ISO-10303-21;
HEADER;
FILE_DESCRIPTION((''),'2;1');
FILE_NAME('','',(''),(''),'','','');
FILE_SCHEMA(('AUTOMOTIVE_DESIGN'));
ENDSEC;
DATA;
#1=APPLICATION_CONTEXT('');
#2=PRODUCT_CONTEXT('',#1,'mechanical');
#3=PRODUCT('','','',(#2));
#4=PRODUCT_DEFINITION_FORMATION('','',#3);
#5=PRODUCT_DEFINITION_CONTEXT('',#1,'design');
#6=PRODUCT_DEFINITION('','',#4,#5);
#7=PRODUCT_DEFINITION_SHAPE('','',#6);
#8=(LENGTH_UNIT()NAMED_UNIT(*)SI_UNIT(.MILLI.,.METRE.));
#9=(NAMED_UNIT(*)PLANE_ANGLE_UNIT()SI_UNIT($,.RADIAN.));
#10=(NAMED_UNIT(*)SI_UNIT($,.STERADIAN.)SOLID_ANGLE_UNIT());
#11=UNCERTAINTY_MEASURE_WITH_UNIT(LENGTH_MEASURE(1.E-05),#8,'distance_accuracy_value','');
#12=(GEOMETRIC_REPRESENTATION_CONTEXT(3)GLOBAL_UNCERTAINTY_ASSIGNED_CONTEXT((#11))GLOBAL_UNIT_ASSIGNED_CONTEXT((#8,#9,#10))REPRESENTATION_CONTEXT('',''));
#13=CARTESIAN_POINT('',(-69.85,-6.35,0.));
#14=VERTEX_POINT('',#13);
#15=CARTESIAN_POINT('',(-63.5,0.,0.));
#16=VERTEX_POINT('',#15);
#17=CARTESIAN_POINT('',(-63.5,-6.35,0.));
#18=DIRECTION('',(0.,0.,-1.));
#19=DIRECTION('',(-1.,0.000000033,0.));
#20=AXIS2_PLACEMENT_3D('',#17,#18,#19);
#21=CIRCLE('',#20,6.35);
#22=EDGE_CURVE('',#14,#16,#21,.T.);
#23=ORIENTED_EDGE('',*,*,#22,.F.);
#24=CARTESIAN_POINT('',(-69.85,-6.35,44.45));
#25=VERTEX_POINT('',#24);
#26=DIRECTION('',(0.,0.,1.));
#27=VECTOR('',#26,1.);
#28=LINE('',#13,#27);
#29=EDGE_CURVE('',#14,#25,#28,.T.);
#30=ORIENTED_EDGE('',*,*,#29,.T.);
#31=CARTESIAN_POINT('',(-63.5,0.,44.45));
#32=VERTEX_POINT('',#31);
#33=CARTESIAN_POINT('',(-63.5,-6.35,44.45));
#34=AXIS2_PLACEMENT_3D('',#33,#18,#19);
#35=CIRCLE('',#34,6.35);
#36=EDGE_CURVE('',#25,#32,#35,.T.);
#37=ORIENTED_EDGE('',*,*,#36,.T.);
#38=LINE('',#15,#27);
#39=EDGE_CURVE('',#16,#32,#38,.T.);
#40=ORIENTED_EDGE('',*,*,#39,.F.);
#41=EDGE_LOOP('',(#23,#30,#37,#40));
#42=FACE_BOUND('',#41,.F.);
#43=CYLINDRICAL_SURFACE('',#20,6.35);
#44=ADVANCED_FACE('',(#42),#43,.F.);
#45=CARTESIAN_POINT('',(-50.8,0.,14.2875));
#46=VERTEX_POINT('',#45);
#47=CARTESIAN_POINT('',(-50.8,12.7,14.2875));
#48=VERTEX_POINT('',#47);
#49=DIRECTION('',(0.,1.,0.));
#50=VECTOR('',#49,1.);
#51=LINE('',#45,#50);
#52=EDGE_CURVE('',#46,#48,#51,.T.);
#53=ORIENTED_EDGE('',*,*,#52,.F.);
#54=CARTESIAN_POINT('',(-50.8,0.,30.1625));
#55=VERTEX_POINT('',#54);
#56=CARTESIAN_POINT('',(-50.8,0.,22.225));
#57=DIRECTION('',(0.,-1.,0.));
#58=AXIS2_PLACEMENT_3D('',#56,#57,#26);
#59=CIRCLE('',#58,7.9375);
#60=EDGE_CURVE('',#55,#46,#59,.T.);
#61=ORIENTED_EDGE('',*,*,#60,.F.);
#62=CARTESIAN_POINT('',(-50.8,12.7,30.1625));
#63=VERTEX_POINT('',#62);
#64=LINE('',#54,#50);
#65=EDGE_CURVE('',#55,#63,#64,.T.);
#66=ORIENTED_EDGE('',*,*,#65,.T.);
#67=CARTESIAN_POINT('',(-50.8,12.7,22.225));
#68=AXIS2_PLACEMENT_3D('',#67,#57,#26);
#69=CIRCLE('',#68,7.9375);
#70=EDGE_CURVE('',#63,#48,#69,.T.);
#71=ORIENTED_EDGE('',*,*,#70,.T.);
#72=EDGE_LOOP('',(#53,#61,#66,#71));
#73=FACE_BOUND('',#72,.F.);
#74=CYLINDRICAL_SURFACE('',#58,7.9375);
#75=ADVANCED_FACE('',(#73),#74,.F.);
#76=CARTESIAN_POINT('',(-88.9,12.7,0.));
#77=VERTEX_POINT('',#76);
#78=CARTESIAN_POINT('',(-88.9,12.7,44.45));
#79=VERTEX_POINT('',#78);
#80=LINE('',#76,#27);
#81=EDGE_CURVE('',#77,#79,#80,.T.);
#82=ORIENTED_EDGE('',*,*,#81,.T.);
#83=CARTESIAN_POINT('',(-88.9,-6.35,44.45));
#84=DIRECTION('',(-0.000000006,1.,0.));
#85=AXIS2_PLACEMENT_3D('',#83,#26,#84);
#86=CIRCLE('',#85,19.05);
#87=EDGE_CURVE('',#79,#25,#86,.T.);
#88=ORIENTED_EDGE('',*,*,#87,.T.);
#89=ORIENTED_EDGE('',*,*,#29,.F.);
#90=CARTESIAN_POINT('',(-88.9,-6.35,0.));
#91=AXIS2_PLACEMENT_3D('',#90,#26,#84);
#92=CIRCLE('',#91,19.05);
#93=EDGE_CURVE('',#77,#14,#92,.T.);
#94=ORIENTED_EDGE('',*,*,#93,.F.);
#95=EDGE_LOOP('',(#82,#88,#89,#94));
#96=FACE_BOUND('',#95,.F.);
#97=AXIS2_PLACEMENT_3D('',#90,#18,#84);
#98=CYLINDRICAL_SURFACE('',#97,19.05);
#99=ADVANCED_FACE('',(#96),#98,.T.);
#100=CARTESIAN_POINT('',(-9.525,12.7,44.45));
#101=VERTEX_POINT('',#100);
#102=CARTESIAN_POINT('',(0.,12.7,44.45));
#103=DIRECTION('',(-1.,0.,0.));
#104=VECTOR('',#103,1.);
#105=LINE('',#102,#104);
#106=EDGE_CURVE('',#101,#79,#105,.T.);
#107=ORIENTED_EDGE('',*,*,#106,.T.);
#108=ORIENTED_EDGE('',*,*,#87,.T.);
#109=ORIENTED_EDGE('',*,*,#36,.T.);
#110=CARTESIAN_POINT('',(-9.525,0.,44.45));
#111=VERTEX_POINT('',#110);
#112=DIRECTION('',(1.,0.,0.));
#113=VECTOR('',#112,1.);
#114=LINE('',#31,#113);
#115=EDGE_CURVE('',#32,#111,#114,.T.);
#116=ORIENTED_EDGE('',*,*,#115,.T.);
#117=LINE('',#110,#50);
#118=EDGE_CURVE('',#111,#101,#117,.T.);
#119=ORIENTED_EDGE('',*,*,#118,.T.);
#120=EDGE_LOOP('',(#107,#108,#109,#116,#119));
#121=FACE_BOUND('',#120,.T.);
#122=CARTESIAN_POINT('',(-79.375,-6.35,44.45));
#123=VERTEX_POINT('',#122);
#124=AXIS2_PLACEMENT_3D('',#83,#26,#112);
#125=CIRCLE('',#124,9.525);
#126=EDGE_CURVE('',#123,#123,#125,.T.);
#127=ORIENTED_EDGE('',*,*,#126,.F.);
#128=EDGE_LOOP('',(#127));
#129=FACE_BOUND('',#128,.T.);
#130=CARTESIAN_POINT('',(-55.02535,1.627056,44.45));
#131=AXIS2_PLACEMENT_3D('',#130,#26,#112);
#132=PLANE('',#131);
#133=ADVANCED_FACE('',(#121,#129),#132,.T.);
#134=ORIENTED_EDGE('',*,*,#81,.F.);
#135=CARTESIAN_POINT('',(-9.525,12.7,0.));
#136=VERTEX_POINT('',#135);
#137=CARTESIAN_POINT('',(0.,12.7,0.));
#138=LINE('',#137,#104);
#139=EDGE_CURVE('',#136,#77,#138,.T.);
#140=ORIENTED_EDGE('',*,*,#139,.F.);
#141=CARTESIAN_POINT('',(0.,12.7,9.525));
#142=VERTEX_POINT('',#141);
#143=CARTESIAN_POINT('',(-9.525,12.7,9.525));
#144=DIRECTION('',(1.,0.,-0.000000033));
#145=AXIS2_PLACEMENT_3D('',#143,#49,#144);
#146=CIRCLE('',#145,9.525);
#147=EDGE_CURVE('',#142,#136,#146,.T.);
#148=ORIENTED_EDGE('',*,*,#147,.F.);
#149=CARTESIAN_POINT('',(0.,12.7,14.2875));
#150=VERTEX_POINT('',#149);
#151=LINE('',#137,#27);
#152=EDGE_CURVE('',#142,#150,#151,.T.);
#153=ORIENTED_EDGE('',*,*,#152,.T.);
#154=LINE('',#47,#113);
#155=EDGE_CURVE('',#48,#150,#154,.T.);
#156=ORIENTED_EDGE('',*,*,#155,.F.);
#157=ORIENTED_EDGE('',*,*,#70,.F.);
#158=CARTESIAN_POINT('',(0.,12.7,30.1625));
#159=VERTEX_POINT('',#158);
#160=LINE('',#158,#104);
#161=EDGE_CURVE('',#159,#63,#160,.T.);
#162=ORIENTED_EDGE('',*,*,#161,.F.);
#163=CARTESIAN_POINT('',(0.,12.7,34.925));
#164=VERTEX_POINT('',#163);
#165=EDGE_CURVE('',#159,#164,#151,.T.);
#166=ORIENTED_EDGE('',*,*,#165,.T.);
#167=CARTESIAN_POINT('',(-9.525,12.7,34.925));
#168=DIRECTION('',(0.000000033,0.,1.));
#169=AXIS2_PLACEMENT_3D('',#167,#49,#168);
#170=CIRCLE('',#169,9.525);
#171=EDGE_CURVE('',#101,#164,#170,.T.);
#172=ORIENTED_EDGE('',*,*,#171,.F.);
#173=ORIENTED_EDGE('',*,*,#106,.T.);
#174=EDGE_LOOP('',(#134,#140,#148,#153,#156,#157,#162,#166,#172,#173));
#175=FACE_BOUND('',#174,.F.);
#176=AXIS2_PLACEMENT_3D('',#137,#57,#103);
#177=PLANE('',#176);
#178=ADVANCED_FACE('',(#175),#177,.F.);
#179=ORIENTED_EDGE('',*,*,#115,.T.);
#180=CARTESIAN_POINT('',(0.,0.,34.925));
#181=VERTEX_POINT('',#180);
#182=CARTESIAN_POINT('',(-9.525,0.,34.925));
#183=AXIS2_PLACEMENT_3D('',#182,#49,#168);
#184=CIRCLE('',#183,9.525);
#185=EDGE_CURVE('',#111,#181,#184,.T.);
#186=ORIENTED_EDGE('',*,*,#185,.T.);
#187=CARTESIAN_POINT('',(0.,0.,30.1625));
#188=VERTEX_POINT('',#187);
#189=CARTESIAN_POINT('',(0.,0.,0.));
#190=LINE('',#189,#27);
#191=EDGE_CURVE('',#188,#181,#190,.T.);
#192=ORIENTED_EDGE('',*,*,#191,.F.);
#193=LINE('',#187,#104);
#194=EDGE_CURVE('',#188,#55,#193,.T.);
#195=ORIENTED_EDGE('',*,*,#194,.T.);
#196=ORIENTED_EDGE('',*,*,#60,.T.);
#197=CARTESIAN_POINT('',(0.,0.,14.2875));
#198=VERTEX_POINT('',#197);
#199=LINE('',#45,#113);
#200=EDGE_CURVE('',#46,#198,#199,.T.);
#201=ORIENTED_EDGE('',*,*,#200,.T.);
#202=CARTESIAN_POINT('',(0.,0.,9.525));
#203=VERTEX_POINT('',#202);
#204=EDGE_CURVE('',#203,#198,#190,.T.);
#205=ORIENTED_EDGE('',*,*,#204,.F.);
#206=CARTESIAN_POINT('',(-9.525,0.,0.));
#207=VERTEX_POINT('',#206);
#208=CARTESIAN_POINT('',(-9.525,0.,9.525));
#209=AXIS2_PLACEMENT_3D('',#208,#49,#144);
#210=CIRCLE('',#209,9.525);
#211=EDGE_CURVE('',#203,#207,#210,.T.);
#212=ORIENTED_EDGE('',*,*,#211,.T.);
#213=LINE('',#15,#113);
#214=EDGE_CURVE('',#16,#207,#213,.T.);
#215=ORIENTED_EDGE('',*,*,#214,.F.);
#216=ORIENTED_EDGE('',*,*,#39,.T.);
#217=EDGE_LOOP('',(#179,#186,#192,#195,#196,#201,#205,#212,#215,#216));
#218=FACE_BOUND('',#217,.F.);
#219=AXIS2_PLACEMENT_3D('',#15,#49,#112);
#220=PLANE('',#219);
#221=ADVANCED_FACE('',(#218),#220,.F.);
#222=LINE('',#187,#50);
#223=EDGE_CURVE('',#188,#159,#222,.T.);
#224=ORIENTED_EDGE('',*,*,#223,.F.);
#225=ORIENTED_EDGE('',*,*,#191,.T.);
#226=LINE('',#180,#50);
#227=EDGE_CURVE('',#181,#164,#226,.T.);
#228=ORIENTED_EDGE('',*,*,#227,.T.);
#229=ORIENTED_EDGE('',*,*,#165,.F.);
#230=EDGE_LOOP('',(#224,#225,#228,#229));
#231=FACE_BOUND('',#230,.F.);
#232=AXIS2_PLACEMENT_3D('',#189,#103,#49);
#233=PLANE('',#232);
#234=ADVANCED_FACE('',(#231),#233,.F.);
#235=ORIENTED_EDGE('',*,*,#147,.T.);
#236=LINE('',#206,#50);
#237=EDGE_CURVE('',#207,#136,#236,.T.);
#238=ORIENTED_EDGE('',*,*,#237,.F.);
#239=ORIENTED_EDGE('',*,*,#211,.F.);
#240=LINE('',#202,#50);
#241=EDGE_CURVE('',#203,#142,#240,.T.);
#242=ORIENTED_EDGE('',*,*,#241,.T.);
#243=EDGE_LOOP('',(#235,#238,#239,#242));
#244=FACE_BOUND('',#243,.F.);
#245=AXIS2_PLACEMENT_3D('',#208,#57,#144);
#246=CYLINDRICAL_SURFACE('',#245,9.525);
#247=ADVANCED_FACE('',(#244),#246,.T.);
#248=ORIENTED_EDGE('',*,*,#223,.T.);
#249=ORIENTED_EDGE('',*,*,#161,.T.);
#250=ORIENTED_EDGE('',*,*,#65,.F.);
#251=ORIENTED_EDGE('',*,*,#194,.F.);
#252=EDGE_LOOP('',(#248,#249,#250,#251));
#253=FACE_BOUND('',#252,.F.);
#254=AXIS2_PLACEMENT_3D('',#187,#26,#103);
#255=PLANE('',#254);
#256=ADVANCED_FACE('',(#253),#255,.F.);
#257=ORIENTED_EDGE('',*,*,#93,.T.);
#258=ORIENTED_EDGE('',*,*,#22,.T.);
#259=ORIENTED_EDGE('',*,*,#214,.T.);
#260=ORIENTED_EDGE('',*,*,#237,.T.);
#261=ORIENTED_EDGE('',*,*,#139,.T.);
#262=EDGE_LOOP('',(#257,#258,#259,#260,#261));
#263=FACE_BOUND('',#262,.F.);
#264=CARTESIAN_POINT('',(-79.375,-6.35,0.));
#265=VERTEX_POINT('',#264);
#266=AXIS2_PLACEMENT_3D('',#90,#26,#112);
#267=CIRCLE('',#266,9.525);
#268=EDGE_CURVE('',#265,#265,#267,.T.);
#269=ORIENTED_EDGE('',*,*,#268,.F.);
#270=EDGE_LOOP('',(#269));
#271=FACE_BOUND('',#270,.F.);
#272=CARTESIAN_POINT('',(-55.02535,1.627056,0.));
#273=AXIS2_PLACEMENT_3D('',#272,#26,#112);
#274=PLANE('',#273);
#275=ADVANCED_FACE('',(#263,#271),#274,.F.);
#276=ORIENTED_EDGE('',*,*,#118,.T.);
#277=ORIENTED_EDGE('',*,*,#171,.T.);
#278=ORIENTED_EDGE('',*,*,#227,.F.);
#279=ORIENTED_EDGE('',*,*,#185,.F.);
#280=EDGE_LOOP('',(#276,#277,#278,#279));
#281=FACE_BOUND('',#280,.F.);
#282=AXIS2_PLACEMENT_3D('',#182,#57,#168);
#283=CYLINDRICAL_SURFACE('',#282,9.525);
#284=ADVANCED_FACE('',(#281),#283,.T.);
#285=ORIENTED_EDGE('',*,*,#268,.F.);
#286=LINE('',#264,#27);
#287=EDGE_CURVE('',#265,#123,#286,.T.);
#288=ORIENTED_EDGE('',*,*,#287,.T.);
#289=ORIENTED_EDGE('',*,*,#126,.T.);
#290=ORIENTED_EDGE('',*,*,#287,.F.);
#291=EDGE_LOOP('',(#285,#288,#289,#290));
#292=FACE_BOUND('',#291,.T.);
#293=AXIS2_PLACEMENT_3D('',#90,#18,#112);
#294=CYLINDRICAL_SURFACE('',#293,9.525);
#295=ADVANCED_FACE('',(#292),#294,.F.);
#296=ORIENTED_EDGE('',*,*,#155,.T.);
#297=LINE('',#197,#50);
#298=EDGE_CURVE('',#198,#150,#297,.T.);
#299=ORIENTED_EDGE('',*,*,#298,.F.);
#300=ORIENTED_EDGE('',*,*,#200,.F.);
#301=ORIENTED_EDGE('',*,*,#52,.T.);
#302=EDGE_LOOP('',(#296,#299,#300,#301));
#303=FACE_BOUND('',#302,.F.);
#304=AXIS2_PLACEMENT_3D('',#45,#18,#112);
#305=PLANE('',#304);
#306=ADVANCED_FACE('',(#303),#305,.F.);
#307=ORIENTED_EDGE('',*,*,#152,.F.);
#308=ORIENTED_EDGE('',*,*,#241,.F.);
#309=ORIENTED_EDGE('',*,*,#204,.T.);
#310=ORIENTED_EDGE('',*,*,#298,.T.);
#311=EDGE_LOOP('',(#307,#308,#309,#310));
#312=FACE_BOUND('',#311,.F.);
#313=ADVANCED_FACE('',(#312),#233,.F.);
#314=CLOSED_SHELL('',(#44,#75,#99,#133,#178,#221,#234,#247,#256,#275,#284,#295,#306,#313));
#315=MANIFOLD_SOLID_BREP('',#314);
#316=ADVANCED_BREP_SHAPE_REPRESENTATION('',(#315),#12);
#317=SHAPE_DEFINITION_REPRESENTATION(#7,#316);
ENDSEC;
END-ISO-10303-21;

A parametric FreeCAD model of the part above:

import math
import FreeCAD as App
import Part
import Sketcher
from FreeCAD import Vector
Q = App.Units.Quantity

doc = App.newDocument("Part")
body = doc.addObject("PartDesign::Body", "Body")

# Sketch on XY plane
sketch1 = body.newObject("Sketcher::SketchObject", "Sketch")
sketch1.AttachmentSupport = (doc.getObject("XY_Plane"), [""])
sketch1.MapMode = "FlatFace"
sketch1.addGeometry(Part.LineSegment(Vector(-64, 0, 0), Vector(0, 0, 0)), False)
sketch1.addGeometry(Part.LineSegment(Vector(0, 0, 0), Vector(0, 13, 0)), False)
sketch1.addGeometry(Part.LineSegment(Vector(0, 13, 0), Vector(-89, 13, 0)), False)
sketch1.addGeometry(Part.ArcOfCircle(Part.Circle(Vector(-89, -6, 0), Vector(0, 0, 1), 19), math.radians(90), math.radians(360)), False)
sketch1.addGeometry(Part.ArcOfCircle(Part.Circle(Vector(-63, -6, 0), Vector(0, 0, 1), 6), math.radians(90), math.radians(180)), False)
sketch1.addGeometry(Part.Circle(Vector(-89, -6, 0), Vector(0, 0, 1), 10), False)
sketch1.addConstraint(Sketcher.Constraint("Coincident", 0, 2, 1, 1))
sketch1.addConstraint(Sketcher.Constraint("Coincident", 1, 2, 2, 1))
sketch1.addConstraint(Sketcher.Constraint("Tangent", 2, 2, 3, 1))
sketch1.addConstraint(Sketcher.Constraint("Tangent", 3, 2, 4, 2))
sketch1.addConstraint(Sketcher.Constraint("Tangent", 4, 1, 0, 1))
sketch1.addConstraint(Sketcher.Constraint("Horizontal", 0))
sketch1.addConstraint(Sketcher.Constraint("Vertical", 1))
sketch1.addConstraint(Sketcher.Constraint("Horizontal", 2))
sketch1.addConstraint(Sketcher.Constraint("Coincident", 0, 2, -1, 1))
sketch1.addConstraint(Sketcher.Constraint("Coincident", 5, 3, 3, 3))
sketch1.addConstraint(Sketcher.Constraint("Horizontal", 3, 3, 4, 3))
sketch1.addConstraint(Sketcher.Constraint("Diameter", 5, Q("0.75 in")))
sketch1.addConstraint(Sketcher.Constraint("Radius", 3, Q("0.75 in")))
sketch1.addConstraint(Sketcher.Constraint("Radius", 4, Q("0.25 in")))
sketch1.addConstraint(Sketcher.Constraint("DistanceX", 0, 1, 0, 2, Q("2.5 in")))
pad1 = body.newObject("PartDesign::Pad", "Pad")
pad1.Profile = sketch1
pad1.Length = Q("1.75 in")

# Sketch on XZ plane
sketch2 = body.newObject("Sketcher::SketchObject", "Sketch001")
sketch2.AttachmentSupport = (doc.getObject("XZ_Plane"), [""])
sketch2.MapMode = "FlatFace"
sketch2.addGeometry(Part.LineSegment(Vector(0, 14, 0), Vector(0, 30, 0)), False)
sketch2.addGeometry(Part.LineSegment(Vector(0, 30, 0), Vector(-51, 30, 0)), False)
sketch2.addGeometry(Part.ArcOfCircle(Part.Circle(Vector(-51, 22, 0), Vector(0, 0, 1), 8), math.radians(90), math.radians(270)), False)
sketch2.addGeometry(Part.LineSegment(Vector(-51, 14, 0), Vector(0, 14, 0)), False)
sketch2.addGeometry(Part.LineSegment(Vector(0, 0, 0), Vector(0, 10, 0)), False)
sketch2.addGeometry(Part.ArcOfCircle(Part.Circle(Vector(-10, 10, 0), Vector(0, 0, 1), 10), math.radians(-90), math.radians(0)), False)
sketch2.addGeometry(Part.LineSegment(Vector(-10, 0, 0), Vector(0, 0, 0)), False)
sketch2.addGeometry(Part.LineSegment(Vector(0, 44, 0), Vector(-10, 44, 0)), False)
sketch2.addGeometry(Part.ArcOfCircle(Part.Circle(Vector(-10, 35, 0), Vector(0, 0, 1), 10), math.radians(0), math.radians(90)), False)
sketch2.addGeometry(Part.LineSegment(Vector(0, 35, 0), Vector(0, 44, 0)), False)
sketch2.addConstraint(Sketcher.Constraint("Coincident", 0, 2, 1, 1))
sketch2.addConstraint(Sketcher.Constraint("Tangent", 1, 2, 2, 1))
sketch2.addConstraint(Sketcher.Constraint("Tangent", 2, 2, 3, 1))
sketch2.addConstraint(Sketcher.Constraint("Coincident", 3, 2, 0, 1))
sketch2.addConstraint(Sketcher.Constraint("Tangent", 4, 2, 5, 2))
sketch2.addConstraint(Sketcher.Constraint("Tangent", 5, 1, 6, 1))
sketch2.addConstraint(Sketcher.Constraint("Coincident", 6, 2, 4, 1))
sketch2.addConstraint(Sketcher.Constraint("Tangent", 7, 2, 8, 2))
sketch2.addConstraint(Sketcher.Constraint("Tangent", 8, 1, 9, 1))
sketch2.addConstraint(Sketcher.Constraint("Coincident", 9, 2, 7, 1))
sketch2.addConstraint(Sketcher.Constraint("Vertical", 0))
sketch2.addConstraint(Sketcher.Constraint("Horizontal", 1))
sketch2.addConstraint(Sketcher.Constraint("Horizontal", 3))
sketch2.addConstraint(Sketcher.Constraint("Vertical", 4))
sketch2.addConstraint(Sketcher.Constraint("Horizontal", 6))
sketch2.addConstraint(Sketcher.Constraint("Horizontal", 7))
sketch2.addConstraint(Sketcher.Constraint("Vertical", 9))
sketch2.addConstraint(Sketcher.Constraint("Coincident", 6, 2, -1, 1))
sketch2.addConstraint(Sketcher.Constraint("Equal", 5, 8))
sketch2.addConstraint(Sketcher.Constraint("PointOnObject", 0, 2, -2))
sketch2.addConstraint(Sketcher.Constraint("PointOnObject", 8, 1, -2))
sketch2.addConstraint(Sketcher.Constraint("DistanceX", 1, 2, 1, 1, Q("2 in")))
sketch2.addConstraint(Sketcher.Constraint("Radius", 2, Q("0.3125 in")))
sketch2.addConstraint(Sketcher.Constraint("Radius", 5, Q("0.375 in")))
sketch2.addConstraint(Sketcher.Constraint("DistanceY", 5, 3, 8, 3, Q("1 in")))
sketch2.addConstraint(Sketcher.Constraint("DistanceY", 5, 3, 2, 3, Q("0.5 in")))
pocket1 = body.newObject("PartDesign::Pocket", "Pocket")
pocket1.Profile = sketch2
pocket1.Length = Q("0.5 in")

doc.recompute()
